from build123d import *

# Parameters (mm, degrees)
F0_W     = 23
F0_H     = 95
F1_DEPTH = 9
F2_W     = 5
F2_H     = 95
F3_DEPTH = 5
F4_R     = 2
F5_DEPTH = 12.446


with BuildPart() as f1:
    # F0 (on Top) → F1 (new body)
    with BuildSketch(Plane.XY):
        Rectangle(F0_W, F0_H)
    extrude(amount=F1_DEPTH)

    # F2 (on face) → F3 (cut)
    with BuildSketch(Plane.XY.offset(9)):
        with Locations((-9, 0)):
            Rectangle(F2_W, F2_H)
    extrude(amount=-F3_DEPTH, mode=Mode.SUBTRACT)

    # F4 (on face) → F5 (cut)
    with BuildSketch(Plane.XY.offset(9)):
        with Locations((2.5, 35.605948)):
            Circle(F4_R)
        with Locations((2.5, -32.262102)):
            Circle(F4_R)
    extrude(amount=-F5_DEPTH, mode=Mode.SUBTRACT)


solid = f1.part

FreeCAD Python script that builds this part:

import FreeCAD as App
import Part
import Sketcher


def add_polygon(sketch, points):
    """Adds a closed chain of lines whose ends are joined by coincident constraints."""
    first, n = sketch.GeometryCount, len(points)
    for a, b in zip(points, points[1:] + points[:1]):
        sketch.addGeometry(Part.LineSegment(App.Vector(*a, 0), App.Vector(*b, 0)), False)
    for i in range(n):
        sketch.addConstraint(Sketcher.Constraint("Coincident", first + i, 2, first + (i + 1) % n, 1))

doc = App.newDocument("Part")
body = doc.addObject("PartDesign::Body", "Body")

sketch1 = doc.addObject("Sketcher::SketchObject", "Sketch")
body.addObject(sketch1)
sketch1.AttachmentSupport = (doc.XY_Plane, [""])
sketch1.MapMode = "FlatFace"
add_polygon(sketch1, [(-11.5, 47.5), (-11.5, -47.5), (11.5, -47.5), (11.5, 47.5)])
sketch1.addConstraint([
    Sketcher.Constraint("Vertical", 0),
    Sketcher.Constraint("Horizontal", 1),
    Sketcher.Constraint("Vertical", 2),
    Sketcher.Constraint("Horizontal", 3),
    Sketcher.Constraint("Symmetric", 0, 2, 2, 2, -1, 1),
    Sketcher.Constraint("DistanceX", 1, 1, 1, 2, 23.0),
    Sketcher.Constraint("DistanceY", 0, 2, 0, 1, 95.0),
])
pad1 = doc.addObject("PartDesign::Pad", "Pad")
body.addObject(pad1)
pad1.Profile = sketch1
pad1.Length = 9

sketch2 = doc.addObject("Sketcher::SketchObject", "Sketch001")
body.addObject(sketch2)
sketch2.AttachmentSupport = (doc.XY_Plane, [""])
sketch2.MapMode = "FlatFace"
sketch2.AttachmentOffset = App.Placement(App.Vector(0, 0, 9), App.Rotation())
add_polygon(sketch2, [(-11.5, 47.5), (-11.5, -47.5), (-6.5, -47.5), (-6.5, 47.5)])
sketch2.addConstraint([
    Sketcher.Constraint("Vertical", 0),
    Sketcher.Constraint("Horizontal", 1),
    Sketcher.Constraint("Vertical", 2),
    Sketcher.Constraint("Horizontal", 3),
    Sketcher.Constraint("DistanceX", 1, 1, 1, 2, 5.0),
    Sketcher.Constraint("DistanceY", 0, 2, 0, 1, 95.0),
    Sketcher.Constraint("DistanceX", 0, 2, -1, 1, 11.5),
    Sketcher.Constraint("DistanceY", 0, 2, -1, 1, 47.5),
])
pocket1 = doc.addObject("PartDesign::Pocket", "Pocket")
body.addObject(pocket1)
pocket1.Profile = sketch2
pocket1.Length = 5

sketch3 = doc.addObject("Sketcher::SketchObject", "Sketch002")
body.addObject(sketch3)
sketch3.AttachmentSupport = (doc.XY_Plane, [""])
sketch3.MapMode = "FlatFace"
sketch3.AttachmentOffset = App.Placement(App.Vector(0, 0, 9), App.Rotation())
sketch3.addGeometry([
    Part.Circle(App.Vector(2.5, 35.605948, 0), App.Vector(0, 0, 1), 2),
    Part.Circle(App.Vector(2.5, -32.262102, 0), App.Vector(0, 0, 1), 2),
], False)
sketch3.addConstraint([
    Sketcher.Constraint("Equal", 0, 1),
    Sketcher.Constraint("Vertical", 0, 3, 1, 3),
    Sketcher.Constraint("Diameter", 0, 4.0),
    Sketcher.Constraint("DistanceX", -1, 1, 0, 3, 2.5),
    Sketcher.Constraint("DistanceY", 1, 3, 0, 3, 67.86805),
    Sketcher.Constraint("DistanceY", -1, 1, 0, 3, 35.605948),
])
pocket2 = doc.addObject("PartDesign::Pocket", "Pocket001")
body.addObject(pocket2)
pocket2.Profile = sketch3
pocket2.Length = 12.446

doc.recompute()
